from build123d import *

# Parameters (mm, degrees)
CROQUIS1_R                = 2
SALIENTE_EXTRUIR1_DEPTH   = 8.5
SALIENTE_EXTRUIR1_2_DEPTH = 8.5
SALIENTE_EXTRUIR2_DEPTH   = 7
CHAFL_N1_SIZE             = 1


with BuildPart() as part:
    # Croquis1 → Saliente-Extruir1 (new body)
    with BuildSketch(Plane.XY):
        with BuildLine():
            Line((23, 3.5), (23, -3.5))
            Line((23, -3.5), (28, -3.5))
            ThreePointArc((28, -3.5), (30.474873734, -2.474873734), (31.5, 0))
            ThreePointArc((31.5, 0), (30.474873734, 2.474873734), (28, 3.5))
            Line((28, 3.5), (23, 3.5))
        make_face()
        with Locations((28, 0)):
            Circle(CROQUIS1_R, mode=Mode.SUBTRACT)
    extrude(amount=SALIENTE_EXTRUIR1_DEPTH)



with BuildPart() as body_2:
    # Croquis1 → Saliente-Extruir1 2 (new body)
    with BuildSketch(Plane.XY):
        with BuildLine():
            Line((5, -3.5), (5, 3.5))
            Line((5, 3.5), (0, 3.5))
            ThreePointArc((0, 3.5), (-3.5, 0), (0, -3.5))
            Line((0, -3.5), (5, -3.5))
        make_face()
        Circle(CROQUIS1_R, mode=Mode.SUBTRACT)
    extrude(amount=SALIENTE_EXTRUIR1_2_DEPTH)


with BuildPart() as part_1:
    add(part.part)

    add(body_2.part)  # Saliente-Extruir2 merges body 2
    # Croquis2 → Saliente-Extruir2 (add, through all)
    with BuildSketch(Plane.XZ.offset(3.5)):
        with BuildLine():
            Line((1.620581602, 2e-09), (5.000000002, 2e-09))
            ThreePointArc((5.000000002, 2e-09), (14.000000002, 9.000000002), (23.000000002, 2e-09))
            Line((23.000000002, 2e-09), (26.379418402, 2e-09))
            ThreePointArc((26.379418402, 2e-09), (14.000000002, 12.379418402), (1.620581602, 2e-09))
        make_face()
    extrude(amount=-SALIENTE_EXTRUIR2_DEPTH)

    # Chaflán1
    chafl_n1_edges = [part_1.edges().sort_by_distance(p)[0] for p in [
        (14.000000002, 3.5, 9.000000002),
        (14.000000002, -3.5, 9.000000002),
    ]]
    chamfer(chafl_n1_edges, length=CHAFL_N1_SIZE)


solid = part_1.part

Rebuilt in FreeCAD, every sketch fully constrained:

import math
import FreeCAD as App
import Part
import Sketcher
from FreeCAD import Vector


def edges_at(feature, points):
    """Names of the edges that pass closest to the given points."""
    edges = feature.Shape.Edges
    near = lambda p: min(range(len(edges)), key=lambda i: edges[i].distToShape(Part.Vertex(*p))[0])
    return sorted({f"Edge{near(p) + 1}" for p in points})

doc = App.newDocument("Part")
body = doc.addObject("PartDesign::Body", "Body")

sketch1 = body.newObject("Sketcher::SketchObject", "Sketch")
sketch1.AttachmentSupport = (doc.getObject("XY_Plane"), [""])
sketch1.MapMode = "FlatFace"
sketch1.addGeometry(Part.LineSegment(Vector(23, 3.5, 0), Vector(23, -3.5, 0)), False)
sketch1.addGeometry(Part.LineSegment(Vector(23, -3.5, 0), Vector(28, -3.5, 0)), False)
sketch1.addGeometry(Part.ArcOfCircle(Part.Circle(Vector(28, 0, 0), Vector(0, 0, 1), 3.5), math.radians(-90), math.radians(0)), False)
sketch1.addGeometry(Part.ArcOfCircle(Part.Circle(Vector(28, 0, 0), Vector(0, 0, 1), 3.5), math.radians(0), math.radians(90)), False)
sketch1.addGeometry(Part.LineSegment(Vector(28, 3.5, 0), Vector(23, 3.5, 0)), False)
sketch1.addGeometry(Part.Circle(Vector(28, 0, 0), Vector(0, 0, 1), 2), False)
sketch1.addConstraint(Sketcher.Constraint("Coincident", 0, 2, 1, 1))
sketch1.addConstraint(Sketcher.Constraint("Tangent", 1, 2, 2, 1))
sketch1.addConstraint(Sketcher.Constraint("Tangent", 2, 2, 3, 1))
sketch1.addConstraint(Sketcher.Constraint("Tangent", 3, 2, 4, 1))
sketch1.addConstraint(Sketcher.Constraint("Coincident", 4, 2, 0, 1))
sketch1.addConstraint(Sketcher.Constraint("Vertical", 0))
sketch1.addConstraint(Sketcher.Constraint("Horizontal", 1))
sketch1.addConstraint(Sketcher.Constraint("Horizontal", 4))
sketch1.addConstraint(Sketcher.Constraint("Coincident", 5, 3, 2, 3))
sketch1.addConstraint(Sketcher.Constraint("Equal", 2, 3))
sketch1.addConstraint(Sketcher.Constraint("PointOnObject", 2, 3, -1))
sketch1.addConstraint(Sketcher.Constraint("PointOnObject", 2, 2, -1))
sketch1.addConstraint(Sketcher.Constraint("Diameter", 5, 4.0))
sketch1.addConstraint(Sketcher.Constraint("Radius", 2, 3.5))
sketch1.addConstraint(Sketcher.Constraint("DistanceX", 1, 1, 1, 2, 5.0))
sketch1.addConstraint(Sketcher.Constraint("DistanceX", -1, 1, 2, 3, 28.0))
pad1 = body.newObject("PartDesign::Pad", "Pad")
pad1.Profile = sketch1
pad1.Length = 8.5
body2 = doc.addObject("PartDesign::Body", "Body001")

sketch2 = body2.newObject("Sketcher::SketchObject", "Sketch001")
sketch2.AttachmentSupport = (doc.getObject("XY_Plane001"), [""])
sketch2.MapMode = "FlatFace"
sketch2.addGeometry(Part.LineSegment(Vector(5, -3.5, 0), Vector(5, 3.5, 0)), False)
sketch2.addGeometry(Part.LineSegment(Vector(5, 3.5, 0), Vector(0, 3.5, 0)), False)
sketch2.addGeometry(Part.ArcOfCircle(Part.Circle(Vector(0, 0, 0), Vector(0, 0, 1), 3.5), math.radians(90), math.radians(270)), False)
sketch2.addGeometry(Part.LineSegment(Vector(0, -3.5, 0), Vector(5, -3.5, 0)), False)
sketch2.addGeometry(Part.Circle(Vector(0, 0, 0), Vector(0, 0, 1), 2), False)
sketch2.addConstraint(Sketcher.Constraint("Coincident", 0, 2, 1, 1))
sketch2.addConstraint(Sketcher.Constraint("Tangent", 1, 2, 2, 1))
sketch2.addConstraint(Sketcher.Constraint("Tangent", 2, 2, 3, 1))
sketch2.addConstraint(Sketcher.Constraint("Coincident", 3, 2, 0, 1))
sketch2.addConstraint(Sketcher.Constraint("Vertical", 0))
sketch2.addConstraint(Sketcher.Constraint("Horizontal", 1))
sketch2.addConstraint(Sketcher.Constraint("Horizontal", 3))
sketch2.addConstraint(Sketcher.Constraint("Coincident", 2, 3, -1, 1))
sketch2.addConstraint(Sketcher.Constraint("Coincident", 4, 3, -1, 1))
sketch2.addConstraint(Sketcher.Constraint("Diameter", 4, 4.0))
sketch2.addConstraint(Sketcher.Constraint("Radius", 2, 3.5))
sketch2.addConstraint(Sketcher.Constraint("DistanceX", 1, 2, 1, 1, 5.0))
pad2 = body2.newObject("PartDesign::Pad", "Pad001")
pad2.Profile = sketch2
pad2.Length = 8.5
body.AllowCompound = True
doc.recompute()

boolean = body.newObject("PartDesign::Boolean", "Boolean")
boolean.Type = "Fuse"
boolean.addObjects([body2])

sketch3 = body.newObject("Sketcher::SketchObject", "Sketch002")
sketch3.AttachmentSupport = (doc.getObject("XZ_Plane"), [""])
sketch3.MapMode = "FlatFace"
sketch3.AttachmentOffset = App.Placement(Vector(0, 0, 3.5), App.Rotation())
sketch3.addGeometry(Part.LineSegment(Vector(1.6, 0, 0), Vector(5, 0, 0)), False)
sketch3.addGeometry(Part.ArcOfCircle(Part.Circle(Vector(14, 0, 0), Vector(0, 0, 1), 9), math.radians(0), math.radians(180)), False)
sketch3.addGeometry(Part.LineSegment(Vector(23, 0, 0), Vector(26.4, 0, 0)), False)
sketch3.addGeometry(Part.ArcOfCircle(Part.Circle(Vector(14, 0, 0), Vector(0, 0, 1), 12.4), math.radians(0), math.radians(180)), False)
sketch3.addConstraint(Sketcher.Constraint("Coincident", 0, 2, 1, 2))
sketch3.addConstraint(Sketcher.Constraint("Coincident", 1, 1, 2, 1))
sketch3.addConstraint(Sketcher.Constraint("Coincident", 2, 2, 3, 1))
sketch3.addConstraint(Sketcher.Constraint("Coincident", 3, 2, 0, 1))
sketch3.addConstraint(Sketcher.Constraint("Horizontal", 0))
sketch3.addConstraint(Sketcher.Constraint("Horizontal", 2))
sketch3.addConstraint(Sketcher.Constraint("Coincident", 3, 3, 1, 3))
sketch3.addConstraint(Sketcher.Constraint("PointOnObject", 1, 3, -1))
sketch3.addConstraint(Sketcher.Constraint("PointOnObject", 0, 2, -1))
sketch3.addConstraint(Sketcher.Constraint("PointOnObject", 1, 1, -1))
sketch3.addConstraint(Sketcher.Constraint("Radius", 1, 9.0))
sketch3.addConstraint(Sketcher.Constraint("DistanceX", -1, 1, 1, 3, 14.0))
sketch3.addConstraint(Sketcher.Constraint("Radius", 3, 12.379418))
pad3 = body.newObject("PartDesign::Pad", "Pad002")
pad3.Profile = sketch3
pad3.Length = 7
pad3.Reversed = True
doc.recompute()

chamfer = body.newObject("PartDesign::Chamfer", "Chamfer")
chamfer.Base = (pad3, edges_at(pad3, [(14, 3.5, 9), (14, -3.5, 9)]))
chamfer.Size = 1

doc.recompute()
